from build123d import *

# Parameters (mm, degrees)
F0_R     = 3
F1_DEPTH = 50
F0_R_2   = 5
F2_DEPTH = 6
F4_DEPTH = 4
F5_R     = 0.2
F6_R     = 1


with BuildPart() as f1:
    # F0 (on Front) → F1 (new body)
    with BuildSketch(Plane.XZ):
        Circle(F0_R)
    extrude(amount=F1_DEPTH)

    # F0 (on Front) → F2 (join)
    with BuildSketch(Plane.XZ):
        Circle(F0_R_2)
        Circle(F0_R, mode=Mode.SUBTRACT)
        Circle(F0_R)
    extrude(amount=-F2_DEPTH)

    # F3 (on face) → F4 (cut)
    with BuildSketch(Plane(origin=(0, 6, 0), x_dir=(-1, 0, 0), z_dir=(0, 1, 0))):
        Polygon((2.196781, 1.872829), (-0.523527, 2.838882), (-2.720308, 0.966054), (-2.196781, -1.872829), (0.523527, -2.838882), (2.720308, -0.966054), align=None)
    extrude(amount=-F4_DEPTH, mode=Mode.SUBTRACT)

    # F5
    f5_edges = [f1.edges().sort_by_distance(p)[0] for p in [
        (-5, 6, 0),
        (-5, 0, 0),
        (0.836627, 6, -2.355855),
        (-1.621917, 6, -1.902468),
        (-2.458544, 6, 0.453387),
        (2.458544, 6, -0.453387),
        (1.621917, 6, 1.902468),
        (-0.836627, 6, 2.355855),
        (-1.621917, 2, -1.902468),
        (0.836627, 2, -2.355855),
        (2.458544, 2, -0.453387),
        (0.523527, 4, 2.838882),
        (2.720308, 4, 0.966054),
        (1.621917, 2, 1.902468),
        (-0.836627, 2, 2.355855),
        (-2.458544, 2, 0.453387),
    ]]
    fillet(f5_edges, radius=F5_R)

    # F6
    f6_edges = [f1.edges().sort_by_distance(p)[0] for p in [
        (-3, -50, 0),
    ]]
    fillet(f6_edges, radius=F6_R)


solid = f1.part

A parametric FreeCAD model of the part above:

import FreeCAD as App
import Part
import Sketcher
Q = App.Units.Quantity


def edges_at(feature, points):
    """Names of the edges that pass closest to the given points."""
    edges = feature.Shape.Edges
    near = lambda p: min(range(len(edges)), key=lambda i: edges[i].distToShape(Part.Vertex(*p))[0])
    return sorted({f"Edge{near(p) + 1}" for p in points})

doc = App.newDocument("Part")
body = doc.addObject("PartDesign::Body", "Body")

sketch1 = doc.addObject("Sketcher::SketchObject", "Sketch")
body.addObject(sketch1)
sketch1.AttachmentSupport = (doc.XZ_Plane, [""])
sketch1.MapMode = "FlatFace"
sketch1.addGeometry(Part.Circle(App.Vector(0, 0, 0), App.Vector(0, 0, 1), 3), False)
sketch1.addConstraint(Sketcher.Constraint("Coincident", 0, 3, -1, 1))
sketch1.addConstraint(Sketcher.Constraint("Diameter", 0, Q("6 mm")))
pad1 = doc.addObject("PartDesign::Pad", "Pad")
body.addObject(pad1)
pad1.Profile = sketch1
pad1.Length = 50

sketch2 = doc.addObject("Sketcher::SketchObject", "Sketch001")
body.addObject(sketch2)
sketch2.AttachmentSupport = (doc.XZ_Plane, [""])
sketch2.MapMode = "FlatFace"
sketch2.addGeometry(Part.Circle(App.Vector(0, 0, 0), App.Vector(0, 0, 1), 5), False)
sketch2.addConstraint(Sketcher.Constraint("Coincident", 0, 3, -1, 1))
sketch2.addConstraint(Sketcher.Constraint("Diameter", 0, Q("10 mm")))
pad2 = doc.addObject("PartDesign::Pad", "Pad001")
body.addObject(pad2)
pad2.Profile = sketch2
pad2.Length = 6
pad2.Reversed = True

sketch3 = doc.addObject("Sketcher::SketchObject", "Sketch002")
body.addObject(sketch3)
sketch3.AttachmentSupport = (doc.XZ_Plane, [""])
sketch3.MapMode = "FlatFace"
sketch3.AttachmentOffset = App.Placement(App.Vector(0, 0, -6), App.Rotation())
sketch3.addGeometry(Part.LineSegment(App.Vector(-2.2, 1.9, 0), App.Vector(0.5, 2.8, 0)), False)
sketch3.addGeometry(Part.LineSegment(App.Vector(0.5, 2.8, 0), App.Vector(2.7, 1, 0)), False)
sketch3.addGeometry(Part.LineSegment(App.Vector(2.7, 1, 0), App.Vector(2.2, -1.9, 0)), False)
sketch3.addGeometry(Part.LineSegment(App.Vector(2.2, -1.9, 0), App.Vector(-0.5, -2.8, 0)), False)
sketch3.addGeometry(Part.LineSegment(App.Vector(-0.5, -2.8, 0), App.Vector(-2.7, -1, 0)), False)
sketch3.addGeometry(Part.LineSegment(App.Vector(-2.7, -1, 0), App.Vector(-2.2, 1.9, 0)), False)
sketch3.addConstraint(Sketcher.Constraint("Coincident", 0, 2, 1, 1))
sketch3.addConstraint(Sketcher.Constraint("Coincident", 1, 2, 2, 1))
sketch3.addConstraint(Sketcher.Constraint("Coincident", 2, 2, 3, 1))
sketch3.addConstraint(Sketcher.Constraint("Coincident", 3, 2, 4, 1))
sketch3.addConstraint(Sketcher.Constraint("Coincident", 4, 2, 5, 1))
sketch3.addConstraint(Sketcher.Constraint("Coincident", 5, 2, 0, 1))
sketch3.addConstraint(Sketcher.Constraint("Symmetric", 0, 2, 3, 2, -1, 1))
sketch3.addConstraint(Sketcher.Constraint("Symmetric", 1, 2, 4, 2, -1, 1))
sketch3.addConstraint(Sketcher.Constraint("Symmetric", 2, 2, 5, 2, -1, 1))
sketch3.addConstraint(Sketcher.Constraint("Equal", 0, 1))
sketch3.addConstraint(Sketcher.Constraint("Equal", 1, 2))
sketch3.addConstraint(Sketcher.Constraint("Distance", 0, Q("2.886751 mm")))
sketch3.addConstraint(Sketcher.Constraint("DistanceY", -1, 1, 0, 2, Q("2.838882 mm")))
sketch3.addConstraint(Sketcher.Constraint("DistanceX", -1, 1, 1, 2, Q("2.720308 mm")))
sketch3.addConstraint(Sketcher.Constraint("DistanceX", -1, 1, 2, 2, Q("2.196781 mm")))
pocket1 = doc.addObject("PartDesign::Pocket", "Pocket")
body.addObject(pocket1)
pocket1.Profile = sketch3
pocket1.Length = 4
pocket1.Reversed = True
doc.recompute()

fillet = doc.addObject("PartDesign::Fillet", "Fillet")
body.addObject(fillet)
fillet.Base = (pocket1, edges_at(pocket1, [
    (-5, 6, 0),
    (-5, 0, 0),
    (0.837, 6, -2.356),
    (-1.622, 6, -1.902),
    (-2.459, 6, 0.453),
    (2.459, 6, -0.453),
    (1.622, 6, 1.902),
    (-0.837, 6, 2.356),
    (-1.622, 2, -1.902),
    (0.837, 2, -2.356),
    (2.459, 2, -0.453),
    (0.524, 4, 2.839),
    (2.72, 4, 0.966),
    (1.622, 2, 1.902),
    (-0.837, 2, 2.356),
    (-2.459, 2, 0.453),
]))
fillet.Radius = 0.2
doc.recompute()

fillet2 = doc.addObject("PartDesign::Fillet", "Fillet001")
body.addObject(fillet2)
fillet2.Base = (fillet, edges_at(fillet, [(-3, -50, 0)]))
fillet2.Radius = 1

doc.recompute()
